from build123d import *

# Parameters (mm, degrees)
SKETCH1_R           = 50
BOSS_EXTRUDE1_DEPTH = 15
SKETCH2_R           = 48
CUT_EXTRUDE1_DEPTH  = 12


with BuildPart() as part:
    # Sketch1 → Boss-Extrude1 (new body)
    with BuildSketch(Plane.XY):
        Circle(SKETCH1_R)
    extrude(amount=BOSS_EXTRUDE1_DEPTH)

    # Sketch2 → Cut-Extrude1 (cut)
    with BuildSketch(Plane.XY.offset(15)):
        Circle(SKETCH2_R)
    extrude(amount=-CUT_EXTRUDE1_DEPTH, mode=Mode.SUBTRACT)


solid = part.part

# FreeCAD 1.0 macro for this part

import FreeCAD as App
import Part
import Sketcher
from FreeCAD import Vector

doc = App.newDocument("Part")
body = doc.addObject("PartDesign::Body", "Body")

# Sketch on XY plane
sketch1 = body.newObject("Sketcher::SketchObject", "Sketch")
sketch1.AttachmentSupport = (doc.getObject("XY_Plane"), [""])
sketch1.MapMode = "FlatFace"
sketch1.addGeometry(Part.Circle(Vector(0, 0, 0), Vector(0, 0, 1), 50), False)
sketch1.addConstraint([
    Sketcher.Constraint("Coincident", 0, 3, -1, 1),
    Sketcher.Constraint("Diameter", 0, 100.0),
])
pad1 = body.newObject("PartDesign::Pad", "Pad")
pad1.Profile = sketch1
pad1.Length = 15

# Sketch on XY plane
sketch2 = body.newObject("Sketcher::SketchObject", "Sketch001")
sketch2.AttachmentSupport = (doc.getObject("XY_Plane"), [""])
sketch2.MapMode = "FlatFace"
sketch2.AttachmentOffset = App.Placement(Vector(0, 0, 15), App.Rotation())
sketch2.addGeometry(Part.Circle(Vector(0, 0, 0), Vector(0, 0, 1), 48), False)
sketch2.addConstraint([
    Sketcher.Constraint("Coincident", 0, 3, -1, 1),
    Sketcher.Constraint("Diameter", 0, 96.0),
])
pocket1 = body.newObject("PartDesign::Pocket", "Pocket")
pocket1.Profile = sketch2
pocket1.Length = 12

doc.recompute()
